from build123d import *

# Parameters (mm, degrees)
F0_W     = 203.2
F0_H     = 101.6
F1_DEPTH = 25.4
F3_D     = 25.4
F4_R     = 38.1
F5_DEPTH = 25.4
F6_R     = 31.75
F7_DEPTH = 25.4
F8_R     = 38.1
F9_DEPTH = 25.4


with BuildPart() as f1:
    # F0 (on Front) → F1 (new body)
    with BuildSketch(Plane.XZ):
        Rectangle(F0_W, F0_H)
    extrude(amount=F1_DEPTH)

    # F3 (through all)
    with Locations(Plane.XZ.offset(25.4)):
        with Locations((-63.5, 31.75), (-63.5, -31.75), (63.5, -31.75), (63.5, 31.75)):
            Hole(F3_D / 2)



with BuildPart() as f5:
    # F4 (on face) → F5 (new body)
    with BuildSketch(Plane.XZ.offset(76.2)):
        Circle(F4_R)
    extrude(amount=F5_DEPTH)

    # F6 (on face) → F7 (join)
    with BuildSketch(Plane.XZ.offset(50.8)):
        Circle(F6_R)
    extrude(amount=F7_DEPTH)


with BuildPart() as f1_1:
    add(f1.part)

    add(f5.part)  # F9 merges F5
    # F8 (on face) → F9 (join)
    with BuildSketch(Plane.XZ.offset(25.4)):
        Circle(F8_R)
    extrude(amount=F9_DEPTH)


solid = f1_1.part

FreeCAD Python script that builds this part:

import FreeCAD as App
import Part
import Sketcher

V = App.Vector
Q = App.Units.Quantity


def add_polygon(sketch, points):
    """Adds a closed chain of lines whose ends are joined by coincident constraints."""
    first, n = sketch.GeometryCount, len(points)
    for a, b in zip(points, points[1:] + points[:1]):
        sketch.addGeometry(Part.LineSegment(App.Vector(*a, 0), App.Vector(*b, 0)), False)
    for i in range(n):
        sketch.addConstraint(Sketcher.Constraint("Coincident", first + i, 2, first + (i + 1) % n, 1))

doc = App.newDocument("Part")
params = doc.addObject("Spreadsheet::Sheet", "Params")
for row, (alias, value) in enumerate([
    ("sketch1_width", "8 in"),
    ("sketch1_height", "4 in"),
    ("pad1_length", "1 in"),
    ("sketch2_diameter", "1 in"),
    ("hole_diameter", "1 in"),
    ("sketch3_diameter", "3 in"),
    ("pad2_length", "1 in"),
    ("sketch4_diameter", "2.5 in"),
    ("pad3_length", "1 in"),
    ("sketch5_diameter", "3 in"),
    ("pad4_length", "1 in"),
], start=1):
    params.set(f"A{row}", alias)
    params.set(f"B{row}", "=" + value)
    params.setAlias(f"B{row}", alias)

body = doc.addObject("PartDesign::Body", "Body")

# Sketch on XZ plane
sketch1 = doc.addObject("Sketcher::SketchObject", "Sketch")
body.addObject(sketch1)
sketch1.AttachmentSupport = (doc.XZ_Plane, [""])
sketch1.MapMode = "FlatFace"
add_polygon(sketch1, [(-102, 51), (-102, -51), (102, -51), (102, 51)])  # lines 0-3
sketch1.addConstraint([
    Sketcher.Constraint("Vertical", 0),
    Sketcher.Constraint("Horizontal", 1),
    Sketcher.Constraint("Vertical", 2),
    Sketcher.Constraint("Horizontal", 3),
    Sketcher.Constraint("Symmetric", 0, 2, 2, 2, -1, 1),
    Sketcher.Constraint("DistanceX", 1, 1, 1, 2, Q("8 in")),
    Sketcher.Constraint("DistanceY", 0, 2, 0, 1, Q("4 in")),
])
sketch1.setExpression("Constraints[9]", "Params.sketch1_width")
sketch1.setExpression("Constraints[10]", "Params.sketch1_height")
pad1 = doc.addObject("PartDesign::Pad", "Pad")
body.addObject(pad1)
pad1.Profile = sketch1
pad1.setExpression("Length", "Params.pad1_length")

# Sketch on XZ plane
sketch2 = doc.addObject("Sketcher::SketchObject", "Sketch001")
body.addObject(sketch2)
sketch2.AttachmentSupport = (doc.XZ_Plane, [""])
sketch2.MapMode = "FlatFace"
sketch2.AttachmentOffset = App.Placement(V(0, 0, 1 * 25.4), App.Rotation())
sketch2.addGeometry([
    Part.Circle(V(-64, 32, 0), V(0, 0, 1), 13),
    Part.Circle(V(-64, -32, 0), V(0, 0, 1), 13),
    Part.Circle(V(64, -32, 0), V(0, 0, 1), 13),
    Part.Circle(V(64, 32, 0), V(0, 0, 1), 13),
], False)
sketch2.addConstraint([
    Sketcher.Constraint("Equal", 0, 1),
    Sketcher.Constraint("Equal", 1, 2),
    Sketcher.Constraint("Equal", 2, 3),
    Sketcher.Constraint("Symmetric", 0, 3, 2, 3, -1, 1),
    Sketcher.Constraint("Symmetric", 1, 3, 3, 3, -1, 1),
    Sketcher.Constraint("Symmetric", 1, 3, 2, 3, -2),
    Sketcher.Constraint("Diameter", 0, Q("1 in")),
    Sketcher.Constraint("DistanceX", 1, 3, 2, 3, Q("5 in")),
    Sketcher.Constraint("DistanceY", 1, 3, 0, 3, Q("2.5 in")),
])
sketch2.setExpression("Constraints[6]", "Params.sketch2_diameter")
doc.recompute()
hole = doc.addObject("PartDesign::Hole", "Hole")
body.addObject(hole)
hole.Profile = sketch2
hole.ThreadType = "None"
hole.setExpression("Diameter", "Params.hole_diameter")
hole.DepthType = "ThroughAll"
body2 = doc.addObject("PartDesign::Body", "Body001")

# Sketch on XZ plane
sketch3 = doc.addObject("Sketcher::SketchObject", "Sketch002")
body2.addObject(sketch3)
sketch3.AttachmentSupport = (doc.getObject("XZ_Plane001"), [""])
sketch3.MapMode = "FlatFace"
sketch3.AttachmentOffset = App.Placement(V(0, 0, 3 * 25.4), App.Rotation())
sketch3.addGeometry(Part.Circle(V(0, 0, 0), V(0, 0, 1), 38), False)
sketch3.addConstraint([
    Sketcher.Constraint("Coincident", 0, 3, -1, 1),
    Sketcher.Constraint("Diameter", 0, Q("3 in")),
])
sketch3.setExpression("Constraints[1]", "Params.sketch3_diameter")
pad2 = doc.addObject("PartDesign::Pad", "Pad001")
body2.addObject(pad2)
pad2.Profile = sketch3
pad2.setExpression("Length", "Params.pad2_length")

# Sketch on XZ plane
sketch4 = doc.addObject("Sketcher::SketchObject", "Sketch003")
body2.addObject(sketch4)
sketch4.AttachmentSupport = (doc.getObject("XZ_Plane001"), [""])
sketch4.MapMode = "FlatFace"
sketch4.AttachmentOffset = App.Placement(V(0, 0, 2 * 25.4), App.Rotation())
sketch4.addGeometry(Part.Circle(V(0, 0, 0), V(0, 0, 1), 32), False)
sketch4.addConstraint([
    Sketcher.Constraint("Coincident", 0, 3, -1, 1),
    Sketcher.Constraint("Diameter", 0, Q("2.5 in")),
])
sketch4.setExpression("Constraints[1]", "Params.sketch4_diameter")
pad3 = doc.addObject("PartDesign::Pad", "Pad002")
body2.addObject(pad3)
pad3.Profile = sketch4
pad3.setExpression("Length", "Params.pad3_length")
body.AllowCompound = True
doc.recompute()

boolean = doc.addObject("PartDesign::Boolean", "Boolean")
body.addObject(boolean)
boolean.Type = "Fuse"
boolean.addObjects([body2])

# Sketch on XZ plane
sketch5 = doc.addObject("Sketcher::SketchObject", "Sketch004")
body.addObject(sketch5)
sketch5.AttachmentSupport = (doc.XZ_Plane, [""])
sketch5.MapMode = "FlatFace"
sketch5.AttachmentOffset = App.Placement(V(0, 0, 1 * 25.4), App.Rotation())
sketch5.addGeometry(Part.Circle(V(0, 0, 0), V(0, 0, 1), 38), False)
sketch5.addConstraint([
    Sketcher.Constraint("Coincident", 0, 3, -1, 1),
    Sketcher.Constraint("Diameter", 0, Q("3 in")),
])
sketch5.setExpression("Constraints[1]", "Params.sketch5_diameter")
pad4 = doc.addObject("PartDesign::Pad", "Pad003")
body.addObject(pad4)
pad4.Profile = sketch5
pad4.setExpression("Length", "Params.pad4_length")

doc.recompute()
